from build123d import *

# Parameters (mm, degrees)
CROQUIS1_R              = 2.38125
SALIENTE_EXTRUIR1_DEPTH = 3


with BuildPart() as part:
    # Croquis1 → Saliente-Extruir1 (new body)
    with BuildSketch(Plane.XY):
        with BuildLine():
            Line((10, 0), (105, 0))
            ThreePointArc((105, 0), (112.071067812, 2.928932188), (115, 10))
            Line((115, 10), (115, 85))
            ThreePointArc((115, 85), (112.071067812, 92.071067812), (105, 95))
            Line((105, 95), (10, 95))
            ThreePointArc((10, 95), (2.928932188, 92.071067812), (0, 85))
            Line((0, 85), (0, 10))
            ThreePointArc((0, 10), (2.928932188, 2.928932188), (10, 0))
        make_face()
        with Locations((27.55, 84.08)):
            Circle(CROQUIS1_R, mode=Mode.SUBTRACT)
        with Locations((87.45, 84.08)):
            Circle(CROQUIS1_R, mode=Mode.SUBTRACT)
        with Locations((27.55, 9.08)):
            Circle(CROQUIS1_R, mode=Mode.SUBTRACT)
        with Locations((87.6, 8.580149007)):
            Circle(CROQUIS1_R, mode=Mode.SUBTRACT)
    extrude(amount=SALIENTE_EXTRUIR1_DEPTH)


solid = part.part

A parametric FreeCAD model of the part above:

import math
import FreeCAD as App
import Part
import Sketcher

V = App.Vector

doc = App.newDocument("Part")
body = doc.addObject("PartDesign::Body", "Body")

sketch1 = body.newObject("Sketcher::SketchObject", "Sketch")
sketch1.AttachmentSupport = (doc.getObject("XY_Plane"), [""])
sketch1.MapMode = "FlatFace"
sketch1.addGeometry([
    Part.LineSegment(V(10, 0, 0), V(105, 0, 0)),
    Part.ArcOfCircle(Part.Circle(V(105, 10, 0), V(0, 0, 1), 10), math.radians(-90), math.radians(0)),
    Part.LineSegment(V(115, 10, 0), V(115, 85, 0)),
    Part.ArcOfCircle(Part.Circle(V(105, 85, 0), V(0, 0, 1), 10), math.radians(0), math.radians(90)),
    Part.LineSegment(V(105, 95, 0), V(10, 95, 0)),
    Part.ArcOfCircle(Part.Circle(V(10, 85, 0), V(0, 0, 1), 10), math.radians(90), math.radians(180)),
    Part.LineSegment(V(0, 85, 0), V(0, 10, 0)),
    Part.ArcOfCircle(Part.Circle(V(10, 10, 0), V(0, 0, 1), 10), math.radians(180), math.radians(270)),
    Part.Circle(V(27.6, 9.1, 0), V(0, 0, 1), 2.4),
    Part.Circle(V(87.6, 8.6, 0), V(0, 0, 1), 2.4),
    Part.Circle(V(27.6, 84.1, 0), V(0, 0, 1), 2.4),
    Part.Circle(V(87.5, 84.1, 0), V(0, 0, 1), 2.4),
], False)
sketch1.addConstraint([
    Sketcher.Constraint("Tangent", 0, 2, 1, 1),
    Sketcher.Constraint("Tangent", 1, 2, 2, 1),
    Sketcher.Constraint("Tangent", 2, 2, 3, 1),
    Sketcher.Constraint("Tangent", 3, 2, 4, 1),
    Sketcher.Constraint("Tangent", 4, 2, 5, 1),
    Sketcher.Constraint("Tangent", 5, 2, 6, 1),
    Sketcher.Constraint("Tangent", 6, 2, 7, 1),
    Sketcher.Constraint("Tangent", 7, 2, 0, 1),
    Sketcher.Constraint("Horizontal", 0),
    Sketcher.Constraint("Vertical", 2),
    Sketcher.Constraint("Horizontal", 4),
    Sketcher.Constraint("Vertical", 6),
    Sketcher.Constraint("Equal", 1, 3),
    Sketcher.Constraint("Equal", 3, 5),
    Sketcher.Constraint("Equal", 5, 7),
    Sketcher.Constraint("Equal", 8, 9),
    Sketcher.Constraint("Equal", 9, 10),
    Sketcher.Constraint("Equal", 10, 11),
    Sketcher.Constraint("PointOnObject", 0, 2, -1),
    Sketcher.Constraint("PointOnObject", 5, 2, -2),
    Sketcher.Constraint("Horizontal", 10, 3, 11, 3),
    Sketcher.Constraint("Vertical", 8, 3, 10, 3),
    Sketcher.Constraint("Radius", 1, 10.0),
    Sketcher.Constraint("DistanceX", 0, 1, 0, 2, 95.0),
    Sketcher.Constraint("DistanceY", 2, 1, 2, 2, 75.0),
    Sketcher.Constraint("DistanceY", 8, 3, 10, 3, 75.0),
    Sketcher.Constraint("Diameter", 8, 4.7625),
    Sketcher.Constraint("DistanceX", -1, 1, 9, 3, 87.6),
    Sketcher.Constraint("DistanceX", 10, 3, 11, 3, 59.9),
    Sketcher.Constraint("DistanceX", -1, 1, 8, 3, 27.55),
    Sketcher.Constraint("DistanceY", -1, 1, 8, 3, 9.08),
    Sketcher.Constraint("DistanceY", -1, 1, 9, 3, 8.580149),
])
pad1 = body.newObject("PartDesign::Pad", "Pad")
pad1.Profile = sketch1
pad1.Length = 3

doc.recompute()
